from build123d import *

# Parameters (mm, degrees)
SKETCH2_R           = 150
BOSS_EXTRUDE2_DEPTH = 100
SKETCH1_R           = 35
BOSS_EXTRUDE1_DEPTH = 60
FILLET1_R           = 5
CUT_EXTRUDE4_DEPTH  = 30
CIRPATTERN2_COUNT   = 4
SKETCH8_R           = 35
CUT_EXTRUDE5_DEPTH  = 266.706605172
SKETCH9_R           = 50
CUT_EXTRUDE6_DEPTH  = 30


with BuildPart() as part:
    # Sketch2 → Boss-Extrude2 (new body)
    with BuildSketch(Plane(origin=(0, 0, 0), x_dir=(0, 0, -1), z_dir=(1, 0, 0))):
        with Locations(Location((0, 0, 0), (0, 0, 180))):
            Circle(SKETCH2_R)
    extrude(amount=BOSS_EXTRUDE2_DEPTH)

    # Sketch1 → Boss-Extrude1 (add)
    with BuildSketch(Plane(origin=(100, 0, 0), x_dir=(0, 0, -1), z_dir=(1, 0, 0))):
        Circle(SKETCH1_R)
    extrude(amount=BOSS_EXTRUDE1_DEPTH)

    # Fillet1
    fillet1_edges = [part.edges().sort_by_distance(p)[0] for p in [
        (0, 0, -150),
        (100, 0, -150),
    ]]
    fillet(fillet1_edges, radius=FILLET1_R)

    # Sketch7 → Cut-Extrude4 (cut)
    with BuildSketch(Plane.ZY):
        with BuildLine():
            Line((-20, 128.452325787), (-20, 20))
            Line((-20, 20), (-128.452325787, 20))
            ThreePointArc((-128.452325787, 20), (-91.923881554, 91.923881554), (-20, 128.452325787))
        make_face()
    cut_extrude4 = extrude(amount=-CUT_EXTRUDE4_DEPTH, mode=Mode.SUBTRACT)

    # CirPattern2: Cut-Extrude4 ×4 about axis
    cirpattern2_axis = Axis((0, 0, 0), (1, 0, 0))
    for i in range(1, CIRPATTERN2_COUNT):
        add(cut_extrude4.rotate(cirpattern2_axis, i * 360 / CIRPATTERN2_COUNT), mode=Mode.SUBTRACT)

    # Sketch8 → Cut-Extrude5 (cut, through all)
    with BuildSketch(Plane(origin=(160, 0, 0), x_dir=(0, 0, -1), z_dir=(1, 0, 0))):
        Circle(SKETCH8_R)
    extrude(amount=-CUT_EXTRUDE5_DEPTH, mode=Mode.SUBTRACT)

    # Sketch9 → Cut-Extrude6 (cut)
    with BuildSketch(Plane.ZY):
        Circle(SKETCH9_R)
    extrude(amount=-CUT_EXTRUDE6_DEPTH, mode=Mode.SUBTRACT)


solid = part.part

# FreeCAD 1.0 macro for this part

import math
import FreeCAD as App
import Part
import Sketcher

V = App.Vector


def edges_at(feature, points):
    """Names of the edges that pass closest to the given points."""
    edges = feature.Shape.Edges
    near = lambda p: min(range(len(edges)), key=lambda i: edges[i].distToShape(Part.Vertex(*p))[0])
    return sorted({f"Edge{near(p) + 1}" for p in points})

doc = App.newDocument("Part")
params = doc.addObject("Spreadsheet::Sheet", "Params")
for row, (alias, value) in enumerate([
    ("sketch1_diameter", "300 mm"),
    ("pad1_length", "100 mm"),
    ("sketch2_diameter", "70 mm"),
    ("pad2_length", "60 mm"),
    ("fillet_radius", "5 mm"),
    ("sketch3_radius", "130 mm"),
    ("pocket1_length", "30 mm"),
    ("sketch4_diameter", "70 mm"),
    ("sketch5_diameter", "100 mm"),
    ("pocket3_length", "30 mm"),
], start=1):
    params.set(f"A{row}", alias)
    params.set(f"B{row}", "=" + value)
    params.setAlias(f"B{row}", alias)

body = doc.addObject("PartDesign::Body", "Body")

# Sketch on YZ plane
sketch1 = body.newObject("Sketcher::SketchObject", "Sketch")
sketch1.AttachmentSupport = (doc.getObject("YZ_Plane"), [""])
sketch1.MapMode = "FlatFace"
sketch1.addGeometry(Part.Circle(V(0, 0, 0), V(0, 0, 1), 150), False)
sketch1.addConstraint(Sketcher.Constraint("Coincident", 0, 3, -1, 1))
sketch1.addConstraint(Sketcher.Constraint("Diameter", 0, 300.0))
sketch1.setExpression("Constraints[1]", "Params.sketch1_diameter")
pad1 = body.newObject("PartDesign::Pad", "Pad")
pad1.Profile = sketch1
pad1.setExpression("Length", "Params.pad1_length")

# Sketch on YZ plane
sketch2 = body.newObject("Sketcher::SketchObject", "Sketch001")
sketch2.AttachmentSupport = (doc.getObject("YZ_Plane"), [""])
sketch2.MapMode = "FlatFace"
sketch2.AttachmentOffset = App.Placement(V(0, 0, 100), App.Rotation())
sketch2.addGeometry(Part.Circle(V(0, 0, 0), V(0, 0, 1), 35), False)
sketch2.addConstraint(Sketcher.Constraint("Coincident", 0, 3, -1, 1))
sketch2.addConstraint(Sketcher.Constraint("Diameter", 0, 70.0))
sketch2.setExpression("Constraints[1]", "Params.sketch2_diameter")
pad2 = body.newObject("PartDesign::Pad", "Pad001")
pad2.Profile = sketch2
pad2.setExpression("Length", "Params.pad2_length")
doc.recompute()

fillet = body.newObject("PartDesign::Fillet", "Fillet")
fillet.Base = (pad2, edges_at(pad2, [(0, 0, -150), (100, 0, -150)]))
fillet.setExpression("Radius", "Params.fillet_radius")

# Sketch on YZ plane
sketch3 = body.newObject("Sketcher::SketchObject", "Sketch002")
sketch3.AttachmentSupport = (doc.getObject("YZ_Plane"), [""])
sketch3.MapMode = "FlatFace"
sketch3.addGeometry(Part.LineSegment(V(20, -20, 0), V(128.452326, -20, 0)), False)
sketch3.addGeometry(Part.ArcOfCircle(Part.Circle(V(0, 0, 0), V(0, 0, 1), 130), math.radians(-81.150117), math.radians(-8.849883)), False)
sketch3.addGeometry(Part.LineSegment(V(20, -128.452326, 0), V(20, -20, 0)), False)
sketch3.addConstraint(Sketcher.Constraint("Coincident", 0, 2, 1, 2))
sketch3.addConstraint(Sketcher.Constraint("Coincident", 1, 1, 2, 1))
sketch3.addConstraint(Sketcher.Constraint("Coincident", 2, 2, 0, 1))
sketch3.addConstraint(Sketcher.Constraint("Horizontal", 0))
sketch3.addConstraint(Sketcher.Constraint("Vertical", 2))
sketch3.addConstraint(Sketcher.Constraint("Coincident", 1, 3, -1, 1))
sketch3.addConstraint(Sketcher.Constraint("Equal", 0, 2))
sketch3.addConstraint(Sketcher.Constraint("Radius", 1, 130.0))
sketch3.addConstraint(Sketcher.Constraint("DistanceY", 0, 2, -1, 1, 20.0))
sketch3.setExpression("Constraints[7]", "Params.sketch3_radius")
pocket1 = body.newObject("PartDesign::Pocket", "Pocket")
pocket1.Profile = sketch3
pocket1.setExpression("Length", "Params.pocket1_length")
pocket1.Reversed = True
doc.recompute()

polarpattern = body.newObject("PartDesign::PolarPattern", "PolarPattern")
polarpattern.Originals = [pocket1]
polarpattern.Axis = (doc.getObject("X_Axis"), [""])
polarpattern.Angle = 360
polarpattern.Occurrences = 4
body.Tip = polarpattern

# Sketch on YZ plane
sketch4 = body.newObject("Sketcher::SketchObject", "Sketch003")
sketch4.AttachmentSupport = (doc.getObject("YZ_Plane"), [""])
sketch4.MapMode = "FlatFace"
sketch4.AttachmentOffset = App.Placement(V(0, 0, 160), App.Rotation())
sketch4.addGeometry(Part.Circle(V(0, 0, 0), V(0, 0, 1), 35), False)
sketch4.addConstraint(Sketcher.Constraint("Coincident", 0, 3, -1, 1))
sketch4.addConstraint(Sketcher.Constraint("Diameter", 0, 70.0))
sketch4.setExpression("Constraints[1]", "Params.sketch4_diameter")
pocket2 = body.newObject("PartDesign::Pocket", "Pocket001")
pocket2.Profile = sketch4
pocket2.Type = "ThroughAll"

# Sketch on YZ plane
sketch5 = body.newObject("Sketcher::SketchObject", "Sketch004")
sketch5.AttachmentSupport = (doc.getObject("YZ_Plane"), [""])
sketch5.MapMode = "FlatFace"
sketch5.addGeometry(Part.Circle(V(0, 0, 0), V(0, 0, 1), 50), False)
sketch5.addConstraint(Sketcher.Constraint("Coincident", 0, 3, -1, 1))
sketch5.addConstraint(Sketcher.Constraint("Diameter", 0, 100.0))
sketch5.setExpression("Constraints[1]", "Params.sketch5_diameter")
pocket3 = body.newObject("PartDesign::Pocket", "Pocket002")
pocket3.Profile = sketch5
pocket3.setExpression("Length", "Params.pocket3_length")
pocket3.Reversed = True

doc.recompute()
